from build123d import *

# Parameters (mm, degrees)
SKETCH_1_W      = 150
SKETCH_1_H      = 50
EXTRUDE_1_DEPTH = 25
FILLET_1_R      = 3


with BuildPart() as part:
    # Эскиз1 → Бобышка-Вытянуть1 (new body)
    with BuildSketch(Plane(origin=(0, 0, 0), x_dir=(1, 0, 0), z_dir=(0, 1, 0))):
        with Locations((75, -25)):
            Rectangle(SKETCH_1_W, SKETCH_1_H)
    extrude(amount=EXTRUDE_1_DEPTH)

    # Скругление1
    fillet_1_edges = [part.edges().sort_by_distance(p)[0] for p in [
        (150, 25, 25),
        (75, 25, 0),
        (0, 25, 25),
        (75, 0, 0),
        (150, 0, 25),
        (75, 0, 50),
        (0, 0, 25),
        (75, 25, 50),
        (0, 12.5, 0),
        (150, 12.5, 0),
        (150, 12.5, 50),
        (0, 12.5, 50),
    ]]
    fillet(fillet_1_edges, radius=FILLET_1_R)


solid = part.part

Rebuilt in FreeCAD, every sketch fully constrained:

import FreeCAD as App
import Part
import Sketcher


def add_polygon(sketch, points):
    """Adds a closed chain of lines whose ends are joined by coincident constraints."""
    first, n = sketch.GeometryCount, len(points)
    for a, b in zip(points, points[1:] + points[:1]):
        sketch.addGeometry(Part.LineSegment(App.Vector(*a, 0), App.Vector(*b, 0)), False)
    for i in range(n):
        sketch.addConstraint(Sketcher.Constraint("Coincident", first + i, 2, first + (i + 1) % n, 1))

doc = App.newDocument("Part")
body = doc.addObject("PartDesign::Body", "Body")

# Sketch on XZ plane
sketch1 = doc.addObject("Sketcher::SketchObject", "Sketch")
body.addObject(sketch1)
sketch1.AttachmentSupport = (doc.XZ_Plane, [""])
sketch1.MapMode = "FlatFace"
add_polygon(sketch1, [(0, 0), (0, 50), (150, 50), (150, 0)])  # lines 0-3
sketch1.addConstraint(Sketcher.Constraint("Vertical", 0))
sketch1.addConstraint(Sketcher.Constraint("Horizontal", 1))
sketch1.addConstraint(Sketcher.Constraint("Vertical", 2))
sketch1.addConstraint(Sketcher.Constraint("Horizontal", 3))
sketch1.addConstraint(Sketcher.Constraint("Coincident", 3, 2, -1, 1))
sketch1.addConstraint(Sketcher.Constraint("DistanceX", 1, 1, 1, 2, 150.0))
sketch1.addConstraint(Sketcher.Constraint("DistanceY", 0, 1, 0, 2, 50.0))
pad1 = doc.addObject("PartDesign::Pad", "Pad")
body.addObject(pad1)
pad1.Profile = sketch1
pad1.Length = 25
pad1.Reversed = True
doc.recompute()

fillet = doc.addObject("PartDesign::Fillet", "Fillet")
body.addObject(fillet)
fillet.Base = (pad1, ["Edge1"])
fillet.UseAllEdges = True
fillet.Radius = 3

doc.recompute()
